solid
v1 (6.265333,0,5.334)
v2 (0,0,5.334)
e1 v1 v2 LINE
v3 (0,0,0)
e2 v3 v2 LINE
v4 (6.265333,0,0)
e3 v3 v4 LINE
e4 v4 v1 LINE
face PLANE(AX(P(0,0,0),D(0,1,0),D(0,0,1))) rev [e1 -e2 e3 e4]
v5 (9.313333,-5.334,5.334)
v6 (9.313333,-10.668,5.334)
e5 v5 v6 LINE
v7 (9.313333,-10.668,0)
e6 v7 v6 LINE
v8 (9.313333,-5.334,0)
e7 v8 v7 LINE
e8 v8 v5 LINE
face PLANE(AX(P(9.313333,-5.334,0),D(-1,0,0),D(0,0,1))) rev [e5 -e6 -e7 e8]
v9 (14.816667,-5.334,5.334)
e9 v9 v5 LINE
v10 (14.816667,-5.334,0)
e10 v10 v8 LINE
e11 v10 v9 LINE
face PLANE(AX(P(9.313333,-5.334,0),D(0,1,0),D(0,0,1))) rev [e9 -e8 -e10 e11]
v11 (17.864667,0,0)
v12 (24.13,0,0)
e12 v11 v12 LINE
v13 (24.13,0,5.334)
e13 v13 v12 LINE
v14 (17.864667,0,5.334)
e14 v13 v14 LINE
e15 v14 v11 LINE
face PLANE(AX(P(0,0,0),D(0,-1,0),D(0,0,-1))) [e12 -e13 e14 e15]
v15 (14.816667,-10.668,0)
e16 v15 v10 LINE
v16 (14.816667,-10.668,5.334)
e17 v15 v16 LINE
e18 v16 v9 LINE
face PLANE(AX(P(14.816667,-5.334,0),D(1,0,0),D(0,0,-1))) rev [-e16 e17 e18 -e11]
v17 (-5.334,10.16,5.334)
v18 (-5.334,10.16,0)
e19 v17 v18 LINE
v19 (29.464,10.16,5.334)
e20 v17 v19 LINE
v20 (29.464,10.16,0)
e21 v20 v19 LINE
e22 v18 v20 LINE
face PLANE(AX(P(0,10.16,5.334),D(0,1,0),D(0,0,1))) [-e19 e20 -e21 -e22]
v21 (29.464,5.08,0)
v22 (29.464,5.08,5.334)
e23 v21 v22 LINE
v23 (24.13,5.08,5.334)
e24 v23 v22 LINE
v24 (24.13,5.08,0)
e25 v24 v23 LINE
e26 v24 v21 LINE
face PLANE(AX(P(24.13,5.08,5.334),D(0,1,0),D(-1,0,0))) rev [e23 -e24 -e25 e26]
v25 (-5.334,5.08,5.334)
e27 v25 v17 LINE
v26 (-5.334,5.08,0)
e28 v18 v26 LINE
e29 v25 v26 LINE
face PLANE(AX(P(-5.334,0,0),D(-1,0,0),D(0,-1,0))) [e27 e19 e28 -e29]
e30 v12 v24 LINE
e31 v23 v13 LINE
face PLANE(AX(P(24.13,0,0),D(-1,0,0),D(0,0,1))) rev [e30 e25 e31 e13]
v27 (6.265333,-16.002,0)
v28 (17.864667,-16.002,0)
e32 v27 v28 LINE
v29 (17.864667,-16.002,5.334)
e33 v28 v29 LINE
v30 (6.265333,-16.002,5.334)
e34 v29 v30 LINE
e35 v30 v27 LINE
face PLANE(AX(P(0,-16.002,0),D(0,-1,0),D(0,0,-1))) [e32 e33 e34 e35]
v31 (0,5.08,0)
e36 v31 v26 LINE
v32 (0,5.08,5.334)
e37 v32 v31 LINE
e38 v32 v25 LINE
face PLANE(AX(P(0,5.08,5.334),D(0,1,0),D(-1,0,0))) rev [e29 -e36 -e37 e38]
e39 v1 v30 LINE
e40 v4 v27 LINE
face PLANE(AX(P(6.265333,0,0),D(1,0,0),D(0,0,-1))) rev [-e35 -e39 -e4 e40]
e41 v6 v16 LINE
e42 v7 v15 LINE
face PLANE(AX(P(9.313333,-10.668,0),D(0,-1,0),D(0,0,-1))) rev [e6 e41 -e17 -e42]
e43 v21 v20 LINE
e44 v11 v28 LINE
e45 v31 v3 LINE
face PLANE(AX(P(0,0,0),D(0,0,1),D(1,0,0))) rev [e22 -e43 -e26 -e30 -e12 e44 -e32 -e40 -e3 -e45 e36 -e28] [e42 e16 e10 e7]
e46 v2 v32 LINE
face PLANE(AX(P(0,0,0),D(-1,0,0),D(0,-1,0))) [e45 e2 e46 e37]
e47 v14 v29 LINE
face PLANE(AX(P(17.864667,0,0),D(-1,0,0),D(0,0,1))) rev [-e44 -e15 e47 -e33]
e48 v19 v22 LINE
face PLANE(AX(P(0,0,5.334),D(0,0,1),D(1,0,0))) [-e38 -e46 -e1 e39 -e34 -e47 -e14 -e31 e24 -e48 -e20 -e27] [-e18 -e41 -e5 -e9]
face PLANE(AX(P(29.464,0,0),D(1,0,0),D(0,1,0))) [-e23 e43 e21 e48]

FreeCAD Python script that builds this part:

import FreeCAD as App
import Part
import Sketcher
Q = App.Units.Quantity

doc = App.newDocument("Part")
body = doc.addObject("PartDesign::Body", "Body")

# Sketch on XY plane
sketch1 = body.newObject("Sketcher::SketchObject", "Sketch")
sketch1.AttachmentSupport = (doc.getObject("XY_Plane"), [""])
sketch1.MapMode = "FlatFace"
sketch1.addGeometry([
    Part.LineSegment(App.Vector(0, 10, 0), App.Vector(0, 0, 0)),
    Part.LineSegment(App.Vector(0, 0, 0), App.Vector(24, 0, 0)),
    Part.LineSegment(App.Vector(24, 0, 0), App.Vector(24, 10, 0)),
    Part.LineSegment(App.Vector(24, 10, 0), App.Vector(0, 10, 0)),
], False)
sketch1.addConstraint([
    Sketcher.Constraint("Coincident", 0, 2, 1, 1),
    Sketcher.Constraint("Coincident", 1, 2, 2, 1),
    Sketcher.Constraint("Coincident", 2, 2, 3, 1),
    Sketcher.Constraint("Coincident", 3, 2, 0, 1),
    Sketcher.Constraint("Vertical", 0),
    Sketcher.Constraint("Horizontal", 1),
    Sketcher.Constraint("Vertical", 2),
    Sketcher.Constraint("Horizontal", 3),
    Sketcher.Constraint("Coincident", 0, 2, -1, 1),
    Sketcher.Constraint("DistanceY", 0, 2, 0, 1, Q("0.4 in")),
    Sketcher.Constraint("DistanceX", 1, 1, 1, 2, Q("0.95 in")),
])
pad1 = body.newObject("PartDesign::Pad", "Pad")
pad1.Profile = sketch1
pad1.Length = Q("0.21 in")

# Sketch on YZ plane
sketch2 = body.newObject("Sketcher::SketchObject", "Sketch001")
sketch2.AttachmentSupport = (doc.getObject("YZ_Plane"), [""])
sketch2.MapMode = "FlatFace"
sketch2.AttachmentOffset = App.Placement(App.Vector(0, 0, 0.95 * 25.4), App.Rotation())
sketch2.addGeometry([
    Part.LineSegment(App.Vector(10, 5, 0), App.Vector(0, 5, 0)),
    Part.LineSegment(App.Vector(0, 5, 0), App.Vector(0, 0, 0)),
    Part.LineSegment(App.Vector(0, 0, 0), App.Vector(10, 0, 0)),
    Part.LineSegment(App.Vector(10, 0, 0), App.Vector(10, 5, 0)),
], False)
sketch2.addConstraint([
    Sketcher.Constraint("Coincident", 0, 2, 1, 1),
    Sketcher.Constraint("Coincident", 1, 2, 2, 1),
    Sketcher.Constraint("Coincident", 2, 2, 3, 1),
    Sketcher.Constraint("Coincident", 3, 2, 0, 1),
    Sketcher.Constraint("Horizontal", 0),
    Sketcher.Constraint("Vertical", 1),
    Sketcher.Constraint("Horizontal", 2),
    Sketcher.Constraint("Vertical", 3),
    Sketcher.Constraint("Coincident", 1, 2, -1, 1),
    Sketcher.Constraint("DistanceX", 0, 2, 0, 1, Q("0.4 in")),
    Sketcher.Constraint("DistanceY", 1, 2, 1, 1, Q("0.21 in")),
])
pad2 = body.newObject("PartDesign::Pad", "Pad001")
pad2.Profile = sketch2
pad2.Length = Q("0.21 in")

# Sketch on YZ plane
sketch3 = body.newObject("Sketcher::SketchObject", "Sketch002")
sketch3.AttachmentSupport = (doc.getObject("YZ_Plane"), [""])
sketch3.MapMode = "FlatFace"
sketch3.addGeometry([
    Part.LineSegment(App.Vector(10, 0, 0), App.Vector(0, 0, 0)),
    Part.LineSegment(App.Vector(0, 0, 0), App.Vector(0, 5, 0)),
    Part.LineSegment(App.Vector(0, 5, 0), App.Vector(10, 5, 0)),
    Part.LineSegment(App.Vector(10, 5, 0), App.Vector(10, 0, 0)),
], False)
sketch3.addConstraint([
    Sketcher.Constraint("Coincident", 0, 2, 1, 1),
    Sketcher.Constraint("Coincident", 1, 2, 2, 1),
    Sketcher.Constraint("Coincident", 2, 2, 3, 1),
    Sketcher.Constraint("Coincident", 3, 2, 0, 1),
    Sketcher.Constraint("Horizontal", 0),
    Sketcher.Constraint("Vertical", 1),
    Sketcher.Constraint("Horizontal", 2),
    Sketcher.Constraint("Vertical", 3),
    Sketcher.Constraint("Coincident", 0, 2, -1, 1),
    Sketcher.Constraint("DistanceY", 1, 1, 1, 2, Q("0.21 in")),
    Sketcher.Constraint("DistanceX", 0, 2, 0, 1, Q("10.206206 mm")),
])
pad3 = body.newObject("PartDesign::Pad", "Pad002")
pad3.Profile = sketch3
pad3.Length = Q("0.21 in")
pad3.Reversed = True

# Sketch on XZ plane
sketch4 = body.newObject("Sketcher::SketchObject", "Sketch003")
sketch4.AttachmentSupport = (doc.getObject("XZ_Plane"), [""])
sketch4.MapMode = "FlatFace"
sketch4.addGeometry([
    Part.LineSegment(App.Vector(29, 0, 0), App.Vector(29, 5, 0)),
    Part.LineSegment(App.Vector(29, 5, 0), App.Vector(-5, 5, 0)),
    Part.LineSegment(App.Vector(-5, 5, 0), App.Vector(-5, 0, 0)),
    Part.LineSegment(App.Vector(-5, 0, 0), App.Vector(29, 0, 0)),
], False)
sketch4.addConstraint([
    Sketcher.Constraint("Coincident", 0, 2, 1, 1),
    Sketcher.Constraint("Coincident", 1, 2, 2, 1),
    Sketcher.Constraint("Coincident", 2, 2, 3, 1),
    Sketcher.Constraint("Coincident", 3, 2, 0, 1),
    Sketcher.Constraint("Vertical", 0),
    Sketcher.Constraint("Horizontal", 1),
    Sketcher.Constraint("Vertical", 2),
    Sketcher.Constraint("Horizontal", 3),
    Sketcher.Constraint("PointOnObject", 2, 2, -1),
    Sketcher.Constraint("DistanceX", 1, 2, 1, 1, Q("1.37 in")),
    Sketcher.Constraint("DistanceY", 0, 1, 0, 2, Q("0.21 in")),
    Sketcher.Constraint("DistanceX", -1, 1, 0, 2, Q("1.16 in")),
])
pad4 = body.newObject("PartDesign::Pad", "Pad003")
pad4.Profile = sketch4
pad4.Length = Q("0.21 in")

# Sketch on XY plane
sketch5 = body.newObject("Sketcher::SketchObject", "Sketch004")
sketch5.AttachmentSupport = (doc.getObject("XY_Plane"), [""])
sketch5.MapMode = "FlatFace"
sketch5.addGeometry([
    Part.LineSegment(App.Vector(0, 10.206, 0), App.Vector(0, 10.16, 0)),
    Part.LineSegment(App.Vector(0, 10.16, 0), App.Vector(-5.334, 10.16, 0)),
    Part.LineSegment(App.Vector(-5.334, 10.16, 0), App.Vector(-5.334, 10.206, 0)),
    Part.LineSegment(App.Vector(-5.334, 10.206, 0), App.Vector(0, 10.206, 0)),
], False)
sketch5.addConstraint([
    Sketcher.Constraint("Coincident", 0, 2, 1, 1),
    Sketcher.Constraint("Coincident", 1, 2, 2, 1),
    Sketcher.Constraint("Coincident", 2, 2, 3, 1),
    Sketcher.Constraint("Coincident", 3, 2, 0, 1),
    Sketcher.Constraint("Vertical", 0),
    Sketcher.Constraint("Horizontal", 1),
    Sketcher.Constraint("Vertical", 2),
    Sketcher.Constraint("Horizontal", 3),
    Sketcher.Constraint("PointOnObject", 0, 2, -2),
    Sketcher.Constraint("DistanceX", 1, 2, 1, 1, Q("0.21 in")),
    Sketcher.Constraint("DistanceY", -1, 1, 0, 2, Q("0.4 in")),
    Sketcher.Constraint("DistanceY", 0, 2, 0, 1, Q("0.046206 mm")),
])
pocket1 = body.newObject("PartDesign::Pocket", "Pocket")
pocket1.Profile = sketch5
pocket1.Type = "ThroughAll"
pocket1.Reversed = True

# Sketch on XZ plane
sketch6 = body.newObject("Sketcher::SketchObject", "Sketch005")
sketch6.AttachmentSupport = (doc.getObject("XZ_Plane"), [""])
sketch6.MapMode = "FlatFace"
sketch6.AttachmentOffset = App.Placement(App.Vector(0, 0, 0.21 * 25.4), App.Rotation())
sketch6.addGeometry([
    Part.LineSegment(App.Vector(6, 0, 0), App.Vector(6, 5, 0)),  # 0
    Part.LineSegment(App.Vector(6, 5, 0), App.Vector(-5, 5, 0)),  # 1
    Part.LineSegment(App.Vector(-5, 5, 0), App.Vector(-5, 0, 0)),  # 2
    Part.LineSegment(App.Vector(-5, 0, 0), App.Vector(6, 0, 0)),  # 3
    Part.LineSegment(App.Vector(29, 0, 0), App.Vector(29, 5, 0)),  # 4
    Part.LineSegment(App.Vector(29, 5, 0), App.Vector(18, 5, 0)),  # 5
    Part.LineSegment(App.Vector(18, 5, 0), App.Vector(18, 0, 0)),  # 6
    Part.LineSegment(App.Vector(18, 0, 0), App.Vector(29, 0, 0)),  # 7
], False)
sketch6.addConstraint([
    Sketcher.Constraint("Coincident", 0, 2, 1, 1),
    Sketcher.Constraint("Coincident", 1, 2, 2, 1),
    Sketcher.Constraint("Coincident", 2, 2, 3, 1),
    Sketcher.Constraint("Coincident", 3, 2, 0, 1),
    Sketcher.Constraint("Coincident", 4, 2, 5, 1),
    Sketcher.Constraint("Coincident", 5, 2, 6, 1),
    Sketcher.Constraint("Coincident", 6, 2, 7, 1),
    Sketcher.Constraint("Coincident", 7, 2, 4, 1),
    Sketcher.Constraint("Vertical", 0),
    Sketcher.Constraint("Horizontal", 1),
    Sketcher.Constraint("Vertical", 2),
    Sketcher.Constraint("Horizontal", 3),
    Sketcher.Constraint("Vertical", 4),
    Sketcher.Constraint("Horizontal", 5),
    Sketcher.Constraint("Vertical", 6),
    Sketcher.Constraint("Horizontal", 7),
    Sketcher.Constraint("PointOnObject", 2, 2, -1),
    Sketcher.Constraint("PointOnObject", 6, 2, -1),
    Sketcher.Constraint("Horizontal", 1, 2, 4, 2),
    Sketcher.Constraint("Equal", 3, 5),
    Sketcher.Constraint("DistanceY", 0, 1, 0, 2, Q("0.21 in")),
    Sketcher.Constraint("DistanceX", 1, 2, -1, 1, Q("0.21 in")),
    Sketcher.Constraint("DistanceX", -1, 1, 4, 2, Q("1.16 in")),
    Sketcher.Constraint("DistanceX", 1, 2, 1, 1, Q("11.599333 mm")),
])
pocket2 = body.newObject("PartDesign::Pocket", "Pocket001")
pocket2.Profile = sketch6
pocket2.Length = Q("0.21 in")

# Sketch on XY plane
sketch7 = body.newObject("Sketcher::SketchObject", "Sketch006")
sketch7.AttachmentSupport = (doc.getObject("XY_Plane"), [""])
sketch7.MapMode = "FlatFace"
sketch7.AttachmentOffset = App.Placement(App.Vector(0, 0, 0.21 * 25.4), App.Rotation())
sketch7.addGeometry([
    Part.LineSegment(App.Vector(-5, 10, 0), App.Vector(-5, 5, 0)),  # 0
    Part.LineSegment(App.Vector(-5, 5, 0), App.Vector(0, 5, 0)),  # 1
    Part.LineSegment(App.Vector(0, 5, 0), App.Vector(0, 10, 0)),  # 2
    Part.LineSegment(App.Vector(0, 10, 0), App.Vector(-5, 10, 0)),  # 3
    Part.LineSegment(App.Vector(18, 10, 0), App.Vector(18, 5, 0)),  # 4
    Part.LineSegment(App.Vector(18, 5, 0), App.Vector(29, 5, 0)),  # 5
    Part.LineSegment(App.Vector(29, 5, 0), App.Vector(29, 10, 0)),  # 6
    Part.LineSegment(App.Vector(29, 10, 0), App.Vector(18, 10, 0)),  # 7
], False)
sketch7.addConstraint([
    Sketcher.Constraint("Coincident", 0, 2, 1, 1),
    Sketcher.Constraint("Coincident", 1, 2, 2, 1),
    Sketcher.Constraint("Coincident", 2, 2, 3, 1),
    Sketcher.Constraint("Coincident", 3, 2, 0, 1),
    Sketcher.Constraint("Coincident", 4, 2, 5, 1),
    Sketcher.Constraint("Coincident", 5, 2, 6, 1),
    Sketcher.Constraint("Coincident", 6, 2, 7, 1),
    Sketcher.Constraint("Coincident", 7, 2, 4, 1),
    Sketcher.Constraint("Vertical", 0),
    Sketcher.Constraint("Horizontal", 1),
    Sketcher.Constraint("Vertical", 2),
    Sketcher.Constraint("Horizontal", 3),
    Sketcher.Constraint("Vertical", 4),
    Sketcher.Constraint("Horizontal", 5),
    Sketcher.Constraint("Vertical", 6),
    Sketcher.Constraint("Horizontal", 7),
    Sketcher.Constraint("PointOnObject", 1, 2, -2),
    Sketcher.Constraint("Horizontal", 1, 2, 4, 2),
    Sketcher.Constraint("Horizontal", 3, 2, 6, 2),
    Sketcher.Constraint("DistanceY", 0, 2, 0, 1, Q("0.2 in")),
    Sketcher.Constraint("DistanceX", 1, 1, 1, 2, Q("0.21 in")),
    Sketcher.Constraint("DistanceX", 5, 1, 5, 2, Q("0.46 in")),
    Sketcher.Constraint("DistanceY", -1, 1, 0, 2, Q("0.2 in")),
    Sketcher.Constraint("DistanceX", -1, 1, 4, 2, Q("0.7 in")),
])
pocket3 = body.newObject("PartDesign::Pocket", "Pocket002")
pocket3.Profile = sketch7
pocket3.Length = Q("0.21 in")

# Sketch on YZ plane
sketch8 = body.newObject("Sketcher::SketchObject", "Sketch007")
sketch8.AttachmentSupport = (doc.getObject("YZ_Plane"), [""])
sketch8.MapMode = "FlatFace"
sketch8.AttachmentOffset = App.Placement(App.Vector(0, 0, 0.7 * 25.4), App.Rotation())
sketch8.addGeometry([
    Part.LineSegment(App.Vector(10, 5, 0), App.Vector(5, 5, 0)),
    Part.LineSegment(App.Vector(5, 5, 0), App.Vector(5, 0, 0)),
    Part.LineSegment(App.Vector(5, 0, 0), App.Vector(10, 0, 0)),
    Part.LineSegment(App.Vector(10, 0, 0), App.Vector(10, 5, 0)),
], False)
sketch8.addConstraint([
    Sketcher.Constraint("Coincident", 0, 2, 1, 1),
    Sketcher.Constraint("Coincident", 1, 2, 2, 1),
    Sketcher.Constraint("Coincident", 2, 2, 3, 1),
    Sketcher.Constraint("Coincident", 3, 2, 0, 1),
    Sketcher.Constraint("Horizontal", 0),
    Sketcher.Constraint("Vertical", 1),
    Sketcher.Constraint("Horizontal", 2),
    Sketcher.Constraint("Vertical", 3),
    Sketcher.Constraint("PointOnObject", 1, 2, -1),
    Sketcher.Constraint("DistanceX", 0, 2, 0, 1, Q("0.2 in")),
    Sketcher.Constraint("DistanceY", 1, 2, 1, 1, Q("0.21 in")),
    Sketcher.Constraint("DistanceX", -1, 1, 0, 2, Q("0.2 in")),
])
pad5 = body.newObject("PartDesign::Pad", "Pad004")
pad5.Profile = sketch8
pad5.Length = Q("0.21 in")

# Sketch on YZ plane
sketch9 = body.newObject("Sketcher::SketchObject", "Sketch008")
sketch9.AttachmentSupport = (doc.getObject("YZ_Plane"), [""])
sketch9.MapMode = "FlatFace"
sketch9.AttachmentOffset = App.Placement(App.Vector(0, 0, 0.91 * 25.4), App.Rotation())
sketch9.addGeometry([
    Part.LineSegment(App.Vector(10, 5, 0), App.Vector(5, 5, 0)),
    Part.LineSegment(App.Vector(5, 5, 0), App.Vector(5, 0, 0)),
    Part.LineSegment(App.Vector(5, 0, 0), App.Vector(10, 0, 0)),
    Part.LineSegment(App.Vector(10, 0, 0), App.Vector(10, 5, 0)),
], False)
sketch9.addConstraint([
    Sketcher.Constraint("Coincident", 0, 2, 1, 1),
    Sketcher.Constraint("Coincident", 1, 2, 2, 1),
    Sketcher.Constraint("Coincident", 2, 2, 3, 1),
    Sketcher.Constraint("Coincident", 3, 2, 0, 1),
    Sketcher.Constraint("Horizontal", 0),
    Sketcher.Constraint("Vertical", 1),
    Sketcher.Constraint("Horizontal", 2),
    Sketcher.Constraint("Vertical", 3),
    Sketcher.Constraint("PointOnObject", 1, 2, -1),
    Sketcher.Constraint("DistanceX", 0, 2, 0, 1, Q("0.2 in")),
    Sketcher.Constraint("DistanceY", 1, 2, 1, 1, Q("0.21 in")),
    Sketcher.Constraint("DistanceX", -1, 1, 0, 2, Q("0.2 in")),
])
pad6 = body.newObject("PartDesign::Pad", "Pad005")
pad6.Profile = sketch9
pad6.Length = Q("0.04 in")

# Sketch on XZ plane
sketch10 = body.newObject("Sketcher::SketchObject", "Sketch009")
sketch10.AttachmentSupport = (doc.getObject("XZ_Plane"), [""])
sketch10.MapMode = "FlatFace"
sketch10.AttachmentOffset = App.Placement(App.Vector(0, 0, 0.21 * 25.4), App.Rotation())
sketch10.addGeometry([
    Part.LineSegment(App.Vector(6, 5, 0), App.Vector(6, 0, 0)),
    Part.LineSegment(App.Vector(6, 0, 0), App.Vector(18, 0, 0)),
    Part.LineSegment(App.Vector(18, 0, 0), App.Vector(18, 5, 0)),
    Part.LineSegment(App.Vector(18, 5, 0), App.Vector(6, 5, 0)),
], False)
sketch10.addConstraint([
    Sketcher.Constraint("Coincident", 0, 2, 1, 1),
    Sketcher.Constraint("Coincident", 1, 2, 2, 1),
    Sketcher.Constraint("Coincident", 2, 2, 3, 1),
    Sketcher.Constraint("Coincident", 3, 2, 0, 1),
    Sketcher.Constraint("Vertical", 0),
    Sketcher.Constraint("Horizontal", 1),
    Sketcher.Constraint("Vertical", 2),
    Sketcher.Constraint("Horizontal", 3),
    Sketcher.Constraint("PointOnObject", 0, 2, -1),
    Sketcher.Constraint("DistanceY", 0, 2, 0, 1, Q("0.21 in")),
    Sketcher.Constraint("DistanceX", 1, 1, 1, 2, Q("11.599333 mm")),
    Sketcher.Constraint("DistanceX", -1, 1, 0, 2, Q("6.265333 mm")),
])
pad7 = body.newObject("PartDesign::Pad", "Pad006")
pad7.Profile = sketch10
pad7.Length = Q("0.42 in")

# Sketch on XY plane
sketch11 = body.newObject("Sketcher::SketchObject", "Sketch010")
sketch11.AttachmentSupport = (doc.getObject("XY_Plane"), [""])
sketch11.MapMode = "FlatFace"
sketch11.AttachmentOffset = App.Placement(App.Vector(0, 0, 0.21 * 25.4), App.Rotation())
sketch11.addGeometry([
    Part.LineSegment(App.Vector(9, -5, 0), App.Vector(9, -11, 0)),
    Part.LineSegment(App.Vector(9, -11, 0), App.Vector(15, -11, 0)),
    Part.LineSegment(App.Vector(15, -11, 0), App.Vector(15, -5, 0)),
    Part.LineSegment(App.Vector(15, -5, 0), App.Vector(9, -5, 0)),
], False)
sketch11.addConstraint([
    Sketcher.Constraint("Coincident", 0, 2, 1, 1),
    Sketcher.Constraint("Coincident", 1, 2, 2, 1),
    Sketcher.Constraint("Coincident", 2, 2, 3, 1),
    Sketcher.Constraint("Coincident", 3, 2, 0, 1),
    Sketcher.Constraint("Vertical", 0),
    Sketcher.Constraint("Horizontal", 1),
    Sketcher.Constraint("Vertical", 2),
    Sketcher.Constraint("Horizontal", 3),
    Sketcher.Constraint("DistanceY", 0, 2, 0, 1, Q("0.21 in")),
    Sketcher.Constraint("DistanceY", 0, 2, -1, 1, Q("0.42 in")),
    Sketcher.Constraint("DistanceX", 1, 1, 1, 2, Q("5.503333 mm")),
    Sketcher.Constraint("DistanceX", -1, 1, 0, 2, Q("9.313333 mm")),
])
pocket4 = body.newObject("PartDesign::Pocket", "Pocket003")
pocket4.Profile = sketch11
pocket4.Type = "ThroughAll"

# Sketch on YZ plane
sketch12 = body.newObject("Sketcher::SketchObject", "Sketch011")
sketch12.AttachmentSupport = (doc.getObject("YZ_Plane"), [""])
sketch12.MapMode = "FlatFace"
sketch12.addGeometry([
    Part.LineSegment(App.Vector(10, 0, 0), App.Vector(5, 0, 0)),
    Part.LineSegment(App.Vector(5, 0, 0), App.Vector(5, 5, 0)),
    Part.LineSegment(App.Vector(5, 5, 0), App.Vector(10, 5, 0)),
    Part.LineSegment(App.Vector(10, 5, 0), App.Vector(10, 0, 0)),
], False)
sketch12.addConstraint([
    Sketcher.Constraint("Coincident", 0, 2, 1, 1),
    Sketcher.Constraint("Coincident", 1, 2, 2, 1),
    Sketcher.Constraint("Coincident", 2, 2, 3, 1),
    Sketcher.Constraint("Coincident", 3, 2, 0, 1),
    Sketcher.Constraint("Horizontal", 0),
    Sketcher.Constraint("Vertical", 1),
    Sketcher.Constraint("Horizontal", 2),
    Sketcher.Constraint("Vertical", 3),
    Sketcher.Constraint("PointOnObject", 0, 2, -1),
    Sketcher.Constraint("DistanceX", 0, 2, 0, 1, Q("0.2 in")),
    Sketcher.Constraint("DistanceY", 1, 1, 1, 2, Q("0.21 in")),
    Sketcher.Constraint("DistanceX", -1, 1, 0, 2, Q("0.2 in")),
])
pad8 = body.newObject("PartDesign::Pad", "Pad007")
pad8.Profile = sketch12
pad8.Length = Q("0.21 in")
pad8.Reversed = True

# Sketch on YZ plane
sketch13 = body.newObject("Sketcher::SketchObject", "Sketch012")
sketch13.AttachmentSupport = (doc.getObject("YZ_Plane"), [""])
sketch13.MapMode = "FlatFace"
sketch13.AttachmentOffset = App.Placement(App.Vector(0, 0, -0.21 * 25.4), App.Rotation())
sketch13.addGeometry([
    Part.LineSegment(App.Vector(5, 0, 0), App.Vector(0, 0, 0)),
    Part.LineSegment(App.Vector(0, 0, 0), App.Vector(0, 5, 0)),
    Part.LineSegment(App.Vector(0, 5, 0), App.Vector(5, 5, 0)),
    Part.LineSegment(App.Vector(5, 5, 0), App.Vector(5, 0, 0)),
], False)
sketch13.addConstraint([
    Sketcher.Constraint("Coincident", 0, 2, 1, 1),
    Sketcher.Constraint("Coincident", 1, 2, 2, 1),
    Sketcher.Constraint("Coincident", 2, 2, 3, 1),
    Sketcher.Constraint("Coincident", 3, 2, 0, 1),
    Sketcher.Constraint("Horizontal", 0),
    Sketcher.Constraint("Vertical", 1),
    Sketcher.Constraint("Horizontal", 2),
    Sketcher.Constraint("Vertical", 3),
    Sketcher.Constraint("Coincident", 0, 2, -1, 1),
    Sketcher.Constraint("DistanceX", 0, 2, 0, 1, Q("0.2 in")),
    Sketcher.Constraint("DistanceY", 1, 1, 1, 2, Q("0.21 in")),
])
pocket5 = body.newObject("PartDesign::Pocket", "Pocket004")
pocket5.Profile = sketch13
pocket5.Length = Q("0.21 in")
pocket5.Reversed = True

# Sketch on YZ plane
sketch14 = body.newObject("Sketcher::SketchObject", "Sketch013")
sketch14.AttachmentSupport = (doc.getObject("YZ_Plane"), [""])
sketch14.MapMode = "FlatFace"
sketch14.AttachmentOffset = App.Placement(App.Vector(0, 0, 0.95 * 25.4), App.Rotation())
sketch14.addGeometry([
    Part.LineSegment(App.Vector(10, 5, 0), App.Vector(5, 5, 0)),
    Part.LineSegment(App.Vector(5, 5, 0), App.Vector(5, 0, 0)),
    Part.LineSegment(App.Vector(5, 0, 0), App.Vector(10, 0, 0)),
    Part.LineSegment(App.Vector(10, 0, 0), App.Vector(10, 5, 0)),
], False)
sketch14.addConstraint([
    Sketcher.Constraint("Coincident", 0, 2, 1, 1),
    Sketcher.Constraint("Coincident", 1, 2, 2, 1),
    Sketcher.Constraint("Coincident", 2, 2, 3, 1),
    Sketcher.Constraint("Coincident", 3, 2, 0, 1),
    Sketcher.Constraint("Horizontal", 0),
    Sketcher.Constraint("Vertical", 1),
    Sketcher.Constraint("Horizontal", 2),
    Sketcher.Constraint("Vertical", 3),
    Sketcher.Constraint("PointOnObject", 1, 2, -1),
    Sketcher.Constraint("DistanceX", 0, 2, 0, 1, Q("0.2 in")),
    Sketcher.Constraint("DistanceY", 1, 2, 1, 1, Q("0.21 in")),
    Sketcher.Constraint("DistanceX", -1, 1, 0, 2, Q("0.2 in")),
])
pad9 = body.newObject("PartDesign::Pad", "Pad008")
pad9.Profile = sketch14
pad9.Length = Q("0.21 in")

# Sketch on YZ plane
sketch15 = body.newObject("Sketcher::SketchObject", "Sketch014")
sketch15.AttachmentSupport = (doc.getObject("YZ_Plane"), [""])
sketch15.MapMode = "FlatFace"
sketch15.AttachmentOffset = App.Placement(App.Vector(0, 0, 1.16 * 25.4), App.Rotation())
sketch15.addGeometry([
    Part.LineSegment(App.Vector(5, 5, 0), App.Vector(0, 5, 0)),
    Part.LineSegment(App.Vector(0, 5, 0), App.Vector(0, 0, 0)),
    Part.LineSegment(App.Vector(0, 0, 0), App.Vector(5, 0, 0)),
    Part.LineSegment(App.Vector(5, 0, 0), App.Vector(5, 5, 0)),
], False)
sketch15.addConstraint([
    Sketcher.Constraint("Coincident", 0, 2, 1, 1),
    Sketcher.Constraint("Coincident", 1, 2, 2, 1),
    Sketcher.Constraint("Coincident", 2, 2, 3, 1),
    Sketcher.Constraint("Coincident", 3, 2, 0, 1),
    Sketcher.Constraint("Horizontal", 0),
    Sketcher.Constraint("Vertical", 1),
    Sketcher.Constraint("Horizontal", 2),
    Sketcher.Constraint("Vertical", 3),
    Sketcher.Constraint("Coincident", 1, 2, -1, 1),
    Sketcher.Constraint("DistanceX", 0, 2, 0, 1, Q("0.2 in")),
    Sketcher.Constraint("DistanceY", 1, 2, 1, 1, Q("0.21 in")),
])
pocket6 = body.newObject("PartDesign::Pocket", "Pocket005")
pocket6.Profile = sketch15
pocket6.Length = Q("0.21 in")

doc.recompute()
